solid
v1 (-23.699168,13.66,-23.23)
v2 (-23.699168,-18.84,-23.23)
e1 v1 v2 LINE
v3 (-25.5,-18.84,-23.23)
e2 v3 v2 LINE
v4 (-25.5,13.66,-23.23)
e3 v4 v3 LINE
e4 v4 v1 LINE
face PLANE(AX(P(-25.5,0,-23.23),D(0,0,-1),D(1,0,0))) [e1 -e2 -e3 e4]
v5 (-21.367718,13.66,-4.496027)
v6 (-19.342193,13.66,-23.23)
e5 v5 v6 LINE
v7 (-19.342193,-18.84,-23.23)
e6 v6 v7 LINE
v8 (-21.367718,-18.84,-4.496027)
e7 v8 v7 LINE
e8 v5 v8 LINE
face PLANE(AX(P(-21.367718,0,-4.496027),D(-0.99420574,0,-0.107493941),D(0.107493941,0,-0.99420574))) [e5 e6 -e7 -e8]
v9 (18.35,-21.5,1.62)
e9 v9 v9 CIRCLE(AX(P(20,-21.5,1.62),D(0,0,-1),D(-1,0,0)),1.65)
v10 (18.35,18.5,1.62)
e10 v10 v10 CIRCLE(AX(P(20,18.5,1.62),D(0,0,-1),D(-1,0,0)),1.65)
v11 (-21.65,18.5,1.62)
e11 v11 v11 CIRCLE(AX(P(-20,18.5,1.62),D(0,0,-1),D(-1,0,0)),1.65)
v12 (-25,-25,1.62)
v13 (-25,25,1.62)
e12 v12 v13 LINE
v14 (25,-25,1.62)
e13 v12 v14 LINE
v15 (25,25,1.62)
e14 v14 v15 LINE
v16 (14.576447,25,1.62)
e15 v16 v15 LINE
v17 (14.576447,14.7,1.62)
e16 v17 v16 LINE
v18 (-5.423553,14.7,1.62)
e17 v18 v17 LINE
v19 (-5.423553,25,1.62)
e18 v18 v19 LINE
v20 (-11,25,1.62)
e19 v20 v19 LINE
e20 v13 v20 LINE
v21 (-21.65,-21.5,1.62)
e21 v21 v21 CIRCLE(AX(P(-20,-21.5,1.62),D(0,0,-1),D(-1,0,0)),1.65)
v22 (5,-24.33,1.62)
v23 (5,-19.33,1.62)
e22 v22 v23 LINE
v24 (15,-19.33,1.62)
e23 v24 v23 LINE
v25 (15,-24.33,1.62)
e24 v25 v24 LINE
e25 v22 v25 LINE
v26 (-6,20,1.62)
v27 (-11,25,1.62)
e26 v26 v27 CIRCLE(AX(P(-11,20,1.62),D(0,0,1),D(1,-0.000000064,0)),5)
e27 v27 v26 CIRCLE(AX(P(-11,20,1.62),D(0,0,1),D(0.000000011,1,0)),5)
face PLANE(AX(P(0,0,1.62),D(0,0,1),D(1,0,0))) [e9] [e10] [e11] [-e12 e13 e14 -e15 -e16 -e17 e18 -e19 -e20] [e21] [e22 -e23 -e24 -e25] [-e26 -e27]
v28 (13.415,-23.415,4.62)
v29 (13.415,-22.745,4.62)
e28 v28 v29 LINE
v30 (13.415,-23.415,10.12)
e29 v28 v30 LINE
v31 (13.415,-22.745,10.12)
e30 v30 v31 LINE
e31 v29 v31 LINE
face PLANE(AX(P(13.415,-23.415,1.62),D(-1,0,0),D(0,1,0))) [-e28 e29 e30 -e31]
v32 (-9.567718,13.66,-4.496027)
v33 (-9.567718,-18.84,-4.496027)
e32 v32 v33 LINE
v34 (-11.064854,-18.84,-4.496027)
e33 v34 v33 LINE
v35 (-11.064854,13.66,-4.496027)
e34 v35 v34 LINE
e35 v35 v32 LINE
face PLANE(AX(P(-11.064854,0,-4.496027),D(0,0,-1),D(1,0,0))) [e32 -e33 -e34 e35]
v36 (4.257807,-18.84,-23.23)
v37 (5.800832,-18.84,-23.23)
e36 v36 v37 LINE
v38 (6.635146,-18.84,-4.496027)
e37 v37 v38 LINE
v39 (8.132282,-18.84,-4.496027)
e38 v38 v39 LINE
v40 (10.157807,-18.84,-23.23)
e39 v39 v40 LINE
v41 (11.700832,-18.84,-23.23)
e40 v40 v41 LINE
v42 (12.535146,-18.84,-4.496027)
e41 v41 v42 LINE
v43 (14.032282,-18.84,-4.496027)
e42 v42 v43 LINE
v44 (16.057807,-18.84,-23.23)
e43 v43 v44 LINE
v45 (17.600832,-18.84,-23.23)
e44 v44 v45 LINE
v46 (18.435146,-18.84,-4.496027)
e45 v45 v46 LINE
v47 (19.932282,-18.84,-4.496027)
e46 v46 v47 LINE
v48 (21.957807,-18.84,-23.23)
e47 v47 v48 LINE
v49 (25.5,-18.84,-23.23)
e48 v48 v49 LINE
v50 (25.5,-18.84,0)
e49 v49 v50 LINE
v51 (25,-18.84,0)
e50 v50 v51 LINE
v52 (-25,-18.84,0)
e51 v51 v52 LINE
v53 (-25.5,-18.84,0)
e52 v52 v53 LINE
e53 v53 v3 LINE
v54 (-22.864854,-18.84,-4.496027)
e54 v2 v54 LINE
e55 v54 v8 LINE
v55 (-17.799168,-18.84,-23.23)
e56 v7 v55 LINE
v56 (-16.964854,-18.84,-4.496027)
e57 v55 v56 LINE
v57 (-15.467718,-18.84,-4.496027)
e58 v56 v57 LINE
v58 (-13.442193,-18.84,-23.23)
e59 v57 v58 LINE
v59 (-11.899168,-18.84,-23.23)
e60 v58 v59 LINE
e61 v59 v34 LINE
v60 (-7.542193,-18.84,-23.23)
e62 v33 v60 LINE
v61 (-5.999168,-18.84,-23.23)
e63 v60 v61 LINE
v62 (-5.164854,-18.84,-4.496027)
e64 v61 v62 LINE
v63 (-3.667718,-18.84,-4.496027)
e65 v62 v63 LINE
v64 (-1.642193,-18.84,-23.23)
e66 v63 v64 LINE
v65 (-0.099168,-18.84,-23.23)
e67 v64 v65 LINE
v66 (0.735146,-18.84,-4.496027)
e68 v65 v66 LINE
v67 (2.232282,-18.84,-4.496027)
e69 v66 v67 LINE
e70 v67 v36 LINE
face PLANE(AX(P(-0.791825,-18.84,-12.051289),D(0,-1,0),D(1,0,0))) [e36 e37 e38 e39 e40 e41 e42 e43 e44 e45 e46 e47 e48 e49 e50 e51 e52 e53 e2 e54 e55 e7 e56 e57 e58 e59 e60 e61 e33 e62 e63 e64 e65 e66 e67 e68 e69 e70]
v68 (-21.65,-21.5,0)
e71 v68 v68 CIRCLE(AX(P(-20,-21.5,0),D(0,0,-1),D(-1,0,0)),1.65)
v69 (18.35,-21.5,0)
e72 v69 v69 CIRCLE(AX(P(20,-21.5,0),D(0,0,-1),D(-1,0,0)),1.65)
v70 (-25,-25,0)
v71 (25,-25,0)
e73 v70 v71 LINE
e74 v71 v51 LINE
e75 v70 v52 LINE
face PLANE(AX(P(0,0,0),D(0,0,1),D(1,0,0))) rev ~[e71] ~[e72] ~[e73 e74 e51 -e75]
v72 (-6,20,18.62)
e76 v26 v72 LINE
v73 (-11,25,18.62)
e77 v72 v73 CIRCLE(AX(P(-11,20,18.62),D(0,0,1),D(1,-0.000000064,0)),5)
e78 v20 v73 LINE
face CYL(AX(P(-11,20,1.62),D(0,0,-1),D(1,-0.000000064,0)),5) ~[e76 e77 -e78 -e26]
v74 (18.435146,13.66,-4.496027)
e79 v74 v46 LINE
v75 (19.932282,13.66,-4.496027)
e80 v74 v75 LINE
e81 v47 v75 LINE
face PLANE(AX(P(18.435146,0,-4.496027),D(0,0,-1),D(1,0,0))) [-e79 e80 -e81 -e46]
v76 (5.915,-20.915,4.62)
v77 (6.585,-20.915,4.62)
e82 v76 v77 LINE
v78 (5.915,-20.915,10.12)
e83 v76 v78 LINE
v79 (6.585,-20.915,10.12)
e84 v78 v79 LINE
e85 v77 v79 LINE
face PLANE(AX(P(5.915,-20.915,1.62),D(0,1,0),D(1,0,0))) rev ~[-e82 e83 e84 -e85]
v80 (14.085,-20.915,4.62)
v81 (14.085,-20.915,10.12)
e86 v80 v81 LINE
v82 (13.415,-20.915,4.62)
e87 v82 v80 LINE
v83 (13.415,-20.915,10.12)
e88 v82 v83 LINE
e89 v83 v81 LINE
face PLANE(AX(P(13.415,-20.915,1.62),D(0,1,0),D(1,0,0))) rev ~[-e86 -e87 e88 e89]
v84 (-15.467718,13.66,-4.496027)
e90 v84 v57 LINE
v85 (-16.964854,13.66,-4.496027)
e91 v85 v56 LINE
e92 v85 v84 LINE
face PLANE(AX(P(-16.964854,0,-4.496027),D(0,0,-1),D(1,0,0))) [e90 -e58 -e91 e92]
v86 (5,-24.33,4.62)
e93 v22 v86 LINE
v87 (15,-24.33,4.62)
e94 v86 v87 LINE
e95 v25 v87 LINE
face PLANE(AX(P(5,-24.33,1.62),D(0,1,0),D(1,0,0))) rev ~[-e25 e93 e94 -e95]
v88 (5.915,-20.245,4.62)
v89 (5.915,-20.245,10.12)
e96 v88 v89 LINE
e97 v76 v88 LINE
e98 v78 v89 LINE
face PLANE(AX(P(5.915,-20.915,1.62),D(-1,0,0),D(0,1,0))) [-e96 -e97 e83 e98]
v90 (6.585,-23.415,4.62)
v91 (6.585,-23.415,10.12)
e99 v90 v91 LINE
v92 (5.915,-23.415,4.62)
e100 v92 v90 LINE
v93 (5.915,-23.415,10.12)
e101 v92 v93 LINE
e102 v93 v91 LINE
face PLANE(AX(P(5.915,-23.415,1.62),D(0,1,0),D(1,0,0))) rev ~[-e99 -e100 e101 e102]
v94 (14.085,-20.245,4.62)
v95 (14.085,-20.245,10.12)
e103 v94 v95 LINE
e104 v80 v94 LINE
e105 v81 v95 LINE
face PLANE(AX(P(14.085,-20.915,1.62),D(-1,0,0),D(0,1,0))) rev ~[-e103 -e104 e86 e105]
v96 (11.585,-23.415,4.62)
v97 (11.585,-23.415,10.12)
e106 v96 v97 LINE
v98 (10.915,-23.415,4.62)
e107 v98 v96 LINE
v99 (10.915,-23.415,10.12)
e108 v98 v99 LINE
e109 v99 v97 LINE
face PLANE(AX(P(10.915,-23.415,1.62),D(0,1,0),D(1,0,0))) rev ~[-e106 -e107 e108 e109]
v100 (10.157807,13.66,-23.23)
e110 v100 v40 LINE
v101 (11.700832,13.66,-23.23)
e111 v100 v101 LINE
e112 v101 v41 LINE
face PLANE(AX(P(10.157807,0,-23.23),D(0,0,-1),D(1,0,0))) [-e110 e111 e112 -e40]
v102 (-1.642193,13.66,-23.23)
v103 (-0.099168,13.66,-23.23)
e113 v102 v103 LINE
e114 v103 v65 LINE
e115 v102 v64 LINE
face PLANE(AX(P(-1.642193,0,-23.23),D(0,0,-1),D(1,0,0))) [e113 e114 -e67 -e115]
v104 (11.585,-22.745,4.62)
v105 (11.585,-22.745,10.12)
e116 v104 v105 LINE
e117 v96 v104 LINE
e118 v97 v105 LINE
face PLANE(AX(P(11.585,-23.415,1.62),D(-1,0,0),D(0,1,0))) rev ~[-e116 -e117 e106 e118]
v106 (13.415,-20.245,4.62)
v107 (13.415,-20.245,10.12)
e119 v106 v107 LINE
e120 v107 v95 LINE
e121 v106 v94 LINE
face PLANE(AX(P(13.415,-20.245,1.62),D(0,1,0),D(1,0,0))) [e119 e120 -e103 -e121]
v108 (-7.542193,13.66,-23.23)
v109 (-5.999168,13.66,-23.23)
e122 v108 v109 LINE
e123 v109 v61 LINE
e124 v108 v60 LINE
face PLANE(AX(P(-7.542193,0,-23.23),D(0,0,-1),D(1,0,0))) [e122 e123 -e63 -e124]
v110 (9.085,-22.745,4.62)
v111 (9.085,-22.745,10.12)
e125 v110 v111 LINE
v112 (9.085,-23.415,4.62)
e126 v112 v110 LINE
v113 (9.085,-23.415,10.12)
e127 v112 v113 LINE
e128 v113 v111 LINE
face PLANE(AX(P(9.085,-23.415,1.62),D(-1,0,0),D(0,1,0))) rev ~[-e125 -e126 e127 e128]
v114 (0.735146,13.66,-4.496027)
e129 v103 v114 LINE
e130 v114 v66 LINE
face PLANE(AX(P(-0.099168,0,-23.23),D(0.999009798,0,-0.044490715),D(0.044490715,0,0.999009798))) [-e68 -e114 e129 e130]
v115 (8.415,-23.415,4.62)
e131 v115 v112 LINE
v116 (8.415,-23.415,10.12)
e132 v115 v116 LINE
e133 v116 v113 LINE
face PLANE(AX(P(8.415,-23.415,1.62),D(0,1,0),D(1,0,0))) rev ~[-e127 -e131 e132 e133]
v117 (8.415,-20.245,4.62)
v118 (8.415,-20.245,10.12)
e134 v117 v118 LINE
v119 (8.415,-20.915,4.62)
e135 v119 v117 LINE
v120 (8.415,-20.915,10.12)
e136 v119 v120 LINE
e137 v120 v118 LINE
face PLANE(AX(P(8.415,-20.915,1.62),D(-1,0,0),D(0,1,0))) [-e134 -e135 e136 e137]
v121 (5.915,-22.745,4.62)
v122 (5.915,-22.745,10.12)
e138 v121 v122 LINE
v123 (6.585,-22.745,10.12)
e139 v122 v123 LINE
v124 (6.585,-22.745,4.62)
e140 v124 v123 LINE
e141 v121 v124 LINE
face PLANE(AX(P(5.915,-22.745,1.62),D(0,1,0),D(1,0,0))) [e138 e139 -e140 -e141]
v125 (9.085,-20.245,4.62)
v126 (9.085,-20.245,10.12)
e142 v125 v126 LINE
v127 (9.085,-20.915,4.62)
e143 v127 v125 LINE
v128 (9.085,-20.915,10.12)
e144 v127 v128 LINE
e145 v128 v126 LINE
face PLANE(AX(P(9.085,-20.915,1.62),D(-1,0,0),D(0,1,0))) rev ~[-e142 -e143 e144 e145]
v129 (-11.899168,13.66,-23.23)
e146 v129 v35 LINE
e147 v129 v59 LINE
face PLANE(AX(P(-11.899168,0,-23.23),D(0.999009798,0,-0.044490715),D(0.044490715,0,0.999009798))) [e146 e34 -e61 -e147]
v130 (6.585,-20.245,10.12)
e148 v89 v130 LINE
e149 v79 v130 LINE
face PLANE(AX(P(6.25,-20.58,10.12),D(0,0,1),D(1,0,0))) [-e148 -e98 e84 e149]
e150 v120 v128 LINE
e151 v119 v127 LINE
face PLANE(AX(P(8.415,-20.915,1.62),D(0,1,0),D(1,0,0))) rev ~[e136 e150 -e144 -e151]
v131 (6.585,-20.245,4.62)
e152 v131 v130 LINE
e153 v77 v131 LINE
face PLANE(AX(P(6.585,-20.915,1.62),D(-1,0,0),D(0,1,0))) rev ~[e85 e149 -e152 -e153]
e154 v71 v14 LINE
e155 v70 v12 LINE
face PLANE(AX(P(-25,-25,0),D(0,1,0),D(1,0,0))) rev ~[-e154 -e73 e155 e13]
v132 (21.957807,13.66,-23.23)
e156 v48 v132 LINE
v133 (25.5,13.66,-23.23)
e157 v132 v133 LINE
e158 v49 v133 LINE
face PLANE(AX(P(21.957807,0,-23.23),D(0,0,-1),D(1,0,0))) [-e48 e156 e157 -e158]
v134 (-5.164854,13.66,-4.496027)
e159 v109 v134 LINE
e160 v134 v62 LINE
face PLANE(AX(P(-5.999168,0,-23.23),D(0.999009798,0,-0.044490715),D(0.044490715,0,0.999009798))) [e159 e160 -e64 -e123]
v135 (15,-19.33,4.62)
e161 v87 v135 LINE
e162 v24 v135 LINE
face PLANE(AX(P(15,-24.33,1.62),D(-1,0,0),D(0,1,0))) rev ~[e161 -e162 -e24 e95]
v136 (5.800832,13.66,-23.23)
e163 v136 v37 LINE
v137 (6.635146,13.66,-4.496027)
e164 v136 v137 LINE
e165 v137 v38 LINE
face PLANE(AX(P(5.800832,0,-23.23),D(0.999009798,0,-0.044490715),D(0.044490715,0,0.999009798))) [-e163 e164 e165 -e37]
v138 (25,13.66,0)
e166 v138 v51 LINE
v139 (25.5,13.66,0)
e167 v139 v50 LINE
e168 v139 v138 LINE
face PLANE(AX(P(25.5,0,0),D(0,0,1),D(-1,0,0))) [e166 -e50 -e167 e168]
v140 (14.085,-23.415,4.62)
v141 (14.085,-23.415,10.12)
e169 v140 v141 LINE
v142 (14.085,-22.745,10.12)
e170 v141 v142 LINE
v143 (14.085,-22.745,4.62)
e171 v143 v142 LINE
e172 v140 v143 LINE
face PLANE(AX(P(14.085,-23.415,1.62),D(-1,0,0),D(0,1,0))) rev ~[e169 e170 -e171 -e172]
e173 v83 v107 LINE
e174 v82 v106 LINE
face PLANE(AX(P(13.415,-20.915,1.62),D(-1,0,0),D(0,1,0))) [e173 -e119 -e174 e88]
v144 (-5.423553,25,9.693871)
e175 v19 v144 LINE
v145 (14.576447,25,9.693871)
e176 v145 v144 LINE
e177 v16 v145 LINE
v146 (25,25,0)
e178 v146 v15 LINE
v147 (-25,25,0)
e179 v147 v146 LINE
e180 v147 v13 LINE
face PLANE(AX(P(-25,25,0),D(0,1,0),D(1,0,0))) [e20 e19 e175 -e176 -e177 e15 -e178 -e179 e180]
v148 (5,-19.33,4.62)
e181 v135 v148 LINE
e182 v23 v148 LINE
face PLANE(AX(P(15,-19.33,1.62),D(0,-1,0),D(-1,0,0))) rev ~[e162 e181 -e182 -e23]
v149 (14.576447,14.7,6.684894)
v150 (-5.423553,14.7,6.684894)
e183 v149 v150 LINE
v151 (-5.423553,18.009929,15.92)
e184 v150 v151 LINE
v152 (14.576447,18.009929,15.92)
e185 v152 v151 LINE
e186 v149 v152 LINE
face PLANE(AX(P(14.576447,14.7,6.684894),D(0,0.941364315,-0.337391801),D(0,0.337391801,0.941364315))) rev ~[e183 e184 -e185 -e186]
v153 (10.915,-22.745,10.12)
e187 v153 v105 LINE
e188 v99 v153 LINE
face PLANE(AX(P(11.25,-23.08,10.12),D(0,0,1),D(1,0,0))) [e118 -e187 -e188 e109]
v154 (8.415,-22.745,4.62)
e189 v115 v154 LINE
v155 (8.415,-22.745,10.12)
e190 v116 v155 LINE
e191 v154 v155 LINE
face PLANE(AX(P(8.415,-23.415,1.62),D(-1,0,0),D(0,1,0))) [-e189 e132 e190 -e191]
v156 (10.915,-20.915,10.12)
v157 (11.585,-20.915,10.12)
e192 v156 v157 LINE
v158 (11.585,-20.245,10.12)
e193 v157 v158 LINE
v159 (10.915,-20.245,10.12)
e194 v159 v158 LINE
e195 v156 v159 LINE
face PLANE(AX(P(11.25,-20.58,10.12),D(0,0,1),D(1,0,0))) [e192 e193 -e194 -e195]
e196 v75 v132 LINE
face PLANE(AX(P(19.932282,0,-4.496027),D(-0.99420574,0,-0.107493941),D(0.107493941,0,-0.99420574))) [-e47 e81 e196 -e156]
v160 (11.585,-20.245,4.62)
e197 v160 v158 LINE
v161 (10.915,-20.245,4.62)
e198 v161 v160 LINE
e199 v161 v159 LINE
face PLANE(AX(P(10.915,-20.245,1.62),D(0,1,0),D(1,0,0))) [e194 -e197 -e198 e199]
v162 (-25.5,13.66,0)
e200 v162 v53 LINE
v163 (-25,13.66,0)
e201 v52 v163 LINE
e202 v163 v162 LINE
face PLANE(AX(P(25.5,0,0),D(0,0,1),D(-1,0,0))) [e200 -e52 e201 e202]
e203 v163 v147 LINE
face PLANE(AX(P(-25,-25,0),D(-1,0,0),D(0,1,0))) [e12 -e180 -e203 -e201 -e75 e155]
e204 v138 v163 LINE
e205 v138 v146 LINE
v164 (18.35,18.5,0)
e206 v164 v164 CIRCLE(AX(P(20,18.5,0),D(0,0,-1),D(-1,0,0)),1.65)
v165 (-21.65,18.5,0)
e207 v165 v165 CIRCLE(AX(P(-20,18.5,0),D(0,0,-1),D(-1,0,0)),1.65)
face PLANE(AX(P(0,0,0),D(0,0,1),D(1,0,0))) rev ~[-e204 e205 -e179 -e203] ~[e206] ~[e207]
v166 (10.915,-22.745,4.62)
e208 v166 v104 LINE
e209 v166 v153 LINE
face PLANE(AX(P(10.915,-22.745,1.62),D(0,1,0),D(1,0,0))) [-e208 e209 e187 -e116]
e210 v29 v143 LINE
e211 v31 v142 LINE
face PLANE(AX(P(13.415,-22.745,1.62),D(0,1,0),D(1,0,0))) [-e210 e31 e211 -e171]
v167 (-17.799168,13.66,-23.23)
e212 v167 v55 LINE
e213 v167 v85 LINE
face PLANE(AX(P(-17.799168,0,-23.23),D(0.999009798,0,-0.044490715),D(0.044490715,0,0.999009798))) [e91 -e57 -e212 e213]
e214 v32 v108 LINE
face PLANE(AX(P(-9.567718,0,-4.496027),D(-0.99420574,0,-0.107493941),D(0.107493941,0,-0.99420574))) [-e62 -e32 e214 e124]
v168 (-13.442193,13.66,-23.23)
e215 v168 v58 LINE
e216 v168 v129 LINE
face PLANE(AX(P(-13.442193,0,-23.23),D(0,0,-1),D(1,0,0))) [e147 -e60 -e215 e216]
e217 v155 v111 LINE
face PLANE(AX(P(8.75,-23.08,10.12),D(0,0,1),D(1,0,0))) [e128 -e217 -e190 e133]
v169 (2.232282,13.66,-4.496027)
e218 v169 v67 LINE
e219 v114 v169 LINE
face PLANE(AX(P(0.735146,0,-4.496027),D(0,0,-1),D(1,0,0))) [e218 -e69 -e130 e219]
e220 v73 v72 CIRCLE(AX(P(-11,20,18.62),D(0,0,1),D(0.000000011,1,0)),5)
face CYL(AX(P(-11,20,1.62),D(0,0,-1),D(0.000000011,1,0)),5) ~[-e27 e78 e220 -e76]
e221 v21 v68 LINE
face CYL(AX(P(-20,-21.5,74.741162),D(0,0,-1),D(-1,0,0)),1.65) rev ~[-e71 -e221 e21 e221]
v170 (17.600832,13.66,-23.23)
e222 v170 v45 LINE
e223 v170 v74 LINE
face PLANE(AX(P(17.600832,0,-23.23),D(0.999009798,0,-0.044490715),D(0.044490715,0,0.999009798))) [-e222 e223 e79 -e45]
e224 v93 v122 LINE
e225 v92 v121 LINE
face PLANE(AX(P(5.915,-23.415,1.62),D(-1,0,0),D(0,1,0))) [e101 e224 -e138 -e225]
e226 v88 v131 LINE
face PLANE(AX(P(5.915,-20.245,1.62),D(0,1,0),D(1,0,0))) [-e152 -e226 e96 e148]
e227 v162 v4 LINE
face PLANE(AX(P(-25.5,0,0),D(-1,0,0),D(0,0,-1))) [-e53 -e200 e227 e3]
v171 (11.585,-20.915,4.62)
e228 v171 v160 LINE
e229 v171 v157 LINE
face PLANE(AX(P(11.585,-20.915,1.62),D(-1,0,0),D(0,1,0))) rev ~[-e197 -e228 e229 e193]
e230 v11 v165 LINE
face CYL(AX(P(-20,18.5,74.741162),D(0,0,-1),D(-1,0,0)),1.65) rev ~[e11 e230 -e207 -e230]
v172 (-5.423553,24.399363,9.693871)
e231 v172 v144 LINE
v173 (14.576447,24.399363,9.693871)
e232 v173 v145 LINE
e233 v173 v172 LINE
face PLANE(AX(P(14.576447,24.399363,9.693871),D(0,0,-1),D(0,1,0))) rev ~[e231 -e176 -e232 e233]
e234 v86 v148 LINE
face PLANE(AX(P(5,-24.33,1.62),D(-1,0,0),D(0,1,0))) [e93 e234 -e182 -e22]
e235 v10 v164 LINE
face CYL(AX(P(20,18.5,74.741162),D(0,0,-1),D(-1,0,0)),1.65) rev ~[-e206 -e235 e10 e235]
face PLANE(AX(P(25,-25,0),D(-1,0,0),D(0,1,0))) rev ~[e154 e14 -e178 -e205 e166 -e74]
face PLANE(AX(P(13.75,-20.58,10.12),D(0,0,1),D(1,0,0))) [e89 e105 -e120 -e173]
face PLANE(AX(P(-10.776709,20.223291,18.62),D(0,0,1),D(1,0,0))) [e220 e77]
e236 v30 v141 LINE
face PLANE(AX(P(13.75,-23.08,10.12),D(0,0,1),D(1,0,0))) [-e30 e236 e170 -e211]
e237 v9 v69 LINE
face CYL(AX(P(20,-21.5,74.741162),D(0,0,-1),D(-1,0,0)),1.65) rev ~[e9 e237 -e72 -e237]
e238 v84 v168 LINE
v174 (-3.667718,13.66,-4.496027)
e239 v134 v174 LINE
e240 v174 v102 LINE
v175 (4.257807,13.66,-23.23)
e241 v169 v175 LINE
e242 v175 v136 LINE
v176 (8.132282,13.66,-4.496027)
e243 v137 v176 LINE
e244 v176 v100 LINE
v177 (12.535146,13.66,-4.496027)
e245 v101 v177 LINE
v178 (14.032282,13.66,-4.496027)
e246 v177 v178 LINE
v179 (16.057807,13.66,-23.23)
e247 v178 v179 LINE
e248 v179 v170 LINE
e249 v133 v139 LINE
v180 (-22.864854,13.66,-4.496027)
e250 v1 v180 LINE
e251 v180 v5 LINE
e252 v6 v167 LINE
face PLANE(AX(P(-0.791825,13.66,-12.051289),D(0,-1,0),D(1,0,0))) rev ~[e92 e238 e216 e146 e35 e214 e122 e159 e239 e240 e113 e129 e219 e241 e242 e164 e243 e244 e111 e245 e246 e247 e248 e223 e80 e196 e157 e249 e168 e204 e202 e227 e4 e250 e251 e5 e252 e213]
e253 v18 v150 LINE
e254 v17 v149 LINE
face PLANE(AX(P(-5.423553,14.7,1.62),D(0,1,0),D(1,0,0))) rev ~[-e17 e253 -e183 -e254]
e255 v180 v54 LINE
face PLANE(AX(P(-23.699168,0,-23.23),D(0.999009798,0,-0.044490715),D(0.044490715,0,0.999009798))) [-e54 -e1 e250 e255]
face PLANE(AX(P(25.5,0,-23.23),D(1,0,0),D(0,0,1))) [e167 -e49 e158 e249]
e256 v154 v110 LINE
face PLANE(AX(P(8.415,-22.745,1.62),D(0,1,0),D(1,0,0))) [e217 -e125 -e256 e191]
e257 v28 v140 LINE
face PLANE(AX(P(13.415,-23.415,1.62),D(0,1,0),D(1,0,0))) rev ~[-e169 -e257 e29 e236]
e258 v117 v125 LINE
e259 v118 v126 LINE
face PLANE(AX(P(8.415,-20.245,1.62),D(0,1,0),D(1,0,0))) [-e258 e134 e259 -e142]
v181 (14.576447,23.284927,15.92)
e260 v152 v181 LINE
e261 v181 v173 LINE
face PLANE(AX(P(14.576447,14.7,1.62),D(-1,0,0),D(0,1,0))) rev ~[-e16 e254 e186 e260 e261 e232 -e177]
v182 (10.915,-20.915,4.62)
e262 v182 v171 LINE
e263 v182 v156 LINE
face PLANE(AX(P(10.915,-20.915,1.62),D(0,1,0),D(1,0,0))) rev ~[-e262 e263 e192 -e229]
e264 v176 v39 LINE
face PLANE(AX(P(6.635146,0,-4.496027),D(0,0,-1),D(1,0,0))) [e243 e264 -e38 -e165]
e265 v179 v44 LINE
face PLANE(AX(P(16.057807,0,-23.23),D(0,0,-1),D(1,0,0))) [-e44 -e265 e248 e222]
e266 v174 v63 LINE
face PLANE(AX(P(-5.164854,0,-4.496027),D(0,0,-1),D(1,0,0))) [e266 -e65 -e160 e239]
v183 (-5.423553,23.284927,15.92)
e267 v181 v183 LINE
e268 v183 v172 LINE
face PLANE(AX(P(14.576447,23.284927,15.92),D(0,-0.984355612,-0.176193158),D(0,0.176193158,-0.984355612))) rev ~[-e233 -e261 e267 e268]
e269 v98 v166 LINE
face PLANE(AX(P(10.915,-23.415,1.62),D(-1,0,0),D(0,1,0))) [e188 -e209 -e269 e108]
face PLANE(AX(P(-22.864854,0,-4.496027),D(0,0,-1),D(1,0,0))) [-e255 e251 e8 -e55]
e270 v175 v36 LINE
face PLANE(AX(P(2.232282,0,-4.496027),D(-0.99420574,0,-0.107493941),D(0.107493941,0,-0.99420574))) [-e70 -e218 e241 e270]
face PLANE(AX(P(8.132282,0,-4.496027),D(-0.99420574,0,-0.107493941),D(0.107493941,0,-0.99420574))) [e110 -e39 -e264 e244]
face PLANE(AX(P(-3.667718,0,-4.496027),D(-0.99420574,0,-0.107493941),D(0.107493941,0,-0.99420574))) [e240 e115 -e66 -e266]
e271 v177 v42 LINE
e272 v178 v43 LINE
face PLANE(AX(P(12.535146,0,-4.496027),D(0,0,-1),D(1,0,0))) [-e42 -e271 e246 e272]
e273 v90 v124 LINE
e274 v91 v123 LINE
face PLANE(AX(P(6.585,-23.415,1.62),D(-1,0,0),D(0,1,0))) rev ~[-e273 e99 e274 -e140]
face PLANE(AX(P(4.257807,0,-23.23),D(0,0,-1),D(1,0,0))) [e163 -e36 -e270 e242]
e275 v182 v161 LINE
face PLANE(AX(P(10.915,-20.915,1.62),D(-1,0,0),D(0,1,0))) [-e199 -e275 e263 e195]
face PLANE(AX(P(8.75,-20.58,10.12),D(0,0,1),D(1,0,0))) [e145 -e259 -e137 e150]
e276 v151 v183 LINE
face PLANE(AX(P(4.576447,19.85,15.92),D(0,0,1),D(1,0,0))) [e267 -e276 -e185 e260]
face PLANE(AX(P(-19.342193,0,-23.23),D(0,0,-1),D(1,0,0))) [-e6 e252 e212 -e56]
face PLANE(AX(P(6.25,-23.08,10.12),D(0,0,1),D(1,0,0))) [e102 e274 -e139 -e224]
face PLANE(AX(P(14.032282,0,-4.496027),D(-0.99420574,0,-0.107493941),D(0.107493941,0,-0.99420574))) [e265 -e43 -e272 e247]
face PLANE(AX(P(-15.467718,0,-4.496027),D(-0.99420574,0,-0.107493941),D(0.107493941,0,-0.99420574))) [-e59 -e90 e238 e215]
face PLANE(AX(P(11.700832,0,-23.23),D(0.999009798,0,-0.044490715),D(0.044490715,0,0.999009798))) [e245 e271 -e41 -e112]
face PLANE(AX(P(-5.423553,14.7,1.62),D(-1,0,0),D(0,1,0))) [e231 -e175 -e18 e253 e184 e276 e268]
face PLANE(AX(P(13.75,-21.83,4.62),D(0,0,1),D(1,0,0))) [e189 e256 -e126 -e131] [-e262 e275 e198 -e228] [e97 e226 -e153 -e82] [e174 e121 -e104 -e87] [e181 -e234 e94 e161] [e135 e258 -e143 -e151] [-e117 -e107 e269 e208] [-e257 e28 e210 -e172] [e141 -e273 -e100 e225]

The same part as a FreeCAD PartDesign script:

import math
import FreeCAD as App
import Part
import Sketcher
from FreeCAD import Vector


def add_polygon(sketch, points):
    """Adds a closed chain of lines whose ends are joined by coincident constraints."""
    first, n = sketch.GeometryCount, len(points)
    for a, b in zip(points, points[1:] + points[:1]):
        sketch.addGeometry(Part.LineSegment(App.Vector(*a, 0), App.Vector(*b, 0)), False)
    for i in range(n):
        sketch.addConstraint(Sketcher.Constraint("Coincident", first + i, 2, first + (i + 1) % n, 1))

doc = App.newDocument("Part")
params = doc.addObject("Spreadsheet::Sheet", "Params")
for row, (alias, value) in enumerate([
    ("sketch1_width", "50 mm"),
    ("pad1_length", "1.62 mm"),
    ("sketch2_radius", "5 mm"),
    ("pad2_length", "17 mm"),
    ("sketch3_width", "20 mm"),
    ("sketch3_height", "10.3 mm"),
    ("pad3_length", "14.3 mm"),
    ("sketch4_width", "10 mm"),
    ("sketch4_height", "5 mm"),
    ("sketch4_width2", "0.67 mm"),
    ("pad4_length", "3 mm"),
    ("sketch5_width", "0.67 mm"),
    ("pad5_length", "8.5 mm"),
    ("sketch6_diameter", "3.3 mm"),
    ("hole_diameter", "3.3 mm"),
    ("sketch7_width", "51 mm"),
    ("sketch7_height", "23.23 mm"),
    ("pad6_length", "18.84 mm"),
    ("pad6_length2", "13.66 mm"),
    ("pocket1_length", "20 mm"),
], start=1):
    params.set(f"A{row}", alias)
    params.set(f"B{row}", "=" + value)
    params.setAlias(f"B{row}", alias)

body = doc.addObject("PartDesign::Body", "Body")

# Sketch on XY plane
sketch1 = body.newObject("Sketcher::SketchObject", "Sketch")
sketch1.AttachmentSupport = (doc.getObject("XY_Plane"), [""])
sketch1.MapMode = "FlatFace"
add_polygon(sketch1, [(-25, 25), (-25, -25), (25, -25), (25, 25)])  # lines 0-3
sketch1.addConstraint(Sketcher.Constraint("Vertical", 0))
sketch1.addConstraint(Sketcher.Constraint("Horizontal", 1))
sketch1.addConstraint(Sketcher.Constraint("Vertical", 2))
sketch1.addConstraint(Sketcher.Constraint("Horizontal", 3))
sketch1.addConstraint(Sketcher.Constraint("Symmetric", 0, 2, 2, 2, -1, 1))
sketch1.addConstraint(Sketcher.Constraint("Equal", 3, 0))
sketch1.addConstraint(Sketcher.Constraint("DistanceX", 1, 1, 1, 2, 50.0))
sketch1.setExpression("Constraints[10]", "Params.sketch1_width")
pad1 = body.newObject("PartDesign::Pad", "Pad")
pad1.Profile = sketch1
pad1.setExpression("Length", "Params.pad1_length")

# Sketch on XY plane
sketch2 = body.newObject("Sketcher::SketchObject", "Sketch001")
sketch2.AttachmentSupport = (doc.getObject("XY_Plane"), [""])
sketch2.MapMode = "FlatFace"
sketch2.AttachmentOffset = App.Placement(Vector(0, 0, 1.62), App.Rotation())
sketch2.addGeometry(Part.ArcOfCircle(Part.Circle(Vector(-11, 20, 0), Vector(0, 0, 1), 5), math.radians(0), math.radians(90)), False)
sketch2.addGeometry(Part.ArcOfCircle(Part.Circle(Vector(-11, 20, 0), Vector(0, 0, 1), 5), math.radians(90), math.radians(360)), False)
sketch2.addConstraint(Sketcher.Constraint("Tangent", 0, 1, 1, 2))
sketch2.addConstraint(Sketcher.Constraint("Coincident", 1, 1, 0, 2))
sketch2.addConstraint(Sketcher.Constraint("Horizontal", 1, 3, 0, 1))
sketch2.addConstraint(Sketcher.Constraint("Vertical", 0, 3, 1, 1))
sketch2.addConstraint(Sketcher.Constraint("Radius", 0, 5.0))
sketch2.addConstraint(Sketcher.Constraint("DistanceX", 0, 3, -1, 1, 11.0))
sketch2.addConstraint(Sketcher.Constraint("DistanceY", -1, 1, 0, 3, 20.0))
sketch2.setExpression("Constraints[4]", "Params.sketch2_radius")
pad2 = body.newObject("PartDesign::Pad", "Pad001")
pad2.Profile = sketch2
pad2.setExpression("Length", "Params.pad2_length")

# Sketch on XY plane
sketch3 = body.newObject("Sketcher::SketchObject", "Sketch002")
sketch3.AttachmentSupport = (doc.getObject("XY_Plane"), [""])
sketch3.MapMode = "FlatFace"
sketch3.AttachmentOffset = App.Placement(Vector(0, 0, 1.62), App.Rotation())
add_polygon(sketch3, [(-5, 25), (-5, 15), (15, 15), (15, 25)])  # lines 0-3
sketch3.addConstraint(Sketcher.Constraint("Vertical", 0))
sketch3.addConstraint(Sketcher.Constraint("Horizontal", 1))
sketch3.addConstraint(Sketcher.Constraint("Vertical", 2))
sketch3.addConstraint(Sketcher.Constraint("Horizontal", 3))
sketch3.addConstraint(Sketcher.Constraint("DistanceX", 1, 1, 1, 2, 20.0))
sketch3.addConstraint(Sketcher.Constraint("DistanceY", 0, 2, 0, 1, 10.3))
sketch3.addConstraint(Sketcher.Constraint("DistanceY", -1, 1, 2, 2, 25.0))
sketch3.addConstraint(Sketcher.Constraint("DistanceX", 0, 2, -1, 1, 5.423553))
sketch3.setExpression("Constraints[8]", "Params.sketch3_width")
sketch3.setExpression("Constraints[9]", "Params.sketch3_height")
pad3 = body.newObject("PartDesign::Pad", "Pad002")
pad3.Profile = sketch3
pad3.setExpression("Length", "Params.pad3_length")

# Sketch on XY plane
sketch4 = body.newObject("Sketcher::SketchObject", "Sketch003")
sketch4.AttachmentSupport = (doc.getObject("XY_Plane"), [""])
sketch4.MapMode = "FlatFace"
sketch4.AttachmentOffset = App.Placement(Vector(0, 0, 1.62), App.Rotation())
add_polygon(sketch4, [(15, -24.3), (15, -19.3), (5, -19.3), (5, -24.3)])  # lines 0-3
add_polygon(sketch4, [(6.6, -23.4), (5.9, -23.4), (5.9, -22.7), (6.6, -22.7)])  # lines 4-7
add_polygon(sketch4, [(9.1, -23.4), (8.4, -23.4), (8.4, -22.7), (9.1, -22.7)])  # lines 8-11
add_polygon(sketch4, [(11.6, -23.4), (10.9, -23.4), (10.9, -22.7), (11.6, -22.7)])  # lines 12-15
add_polygon(sketch4, [(14.1, -23.4), (13.4, -23.4), (13.4, -22.7), (14.1, -22.7)])  # lines 16-19
add_polygon(sketch4, [(6.6, -20.9), (5.9, -20.9), (5.9, -20.2), (6.6, -20.2)])  # lines 20-23
add_polygon(sketch4, [(9.1, -20.9), (8.4, -20.9), (8.4, -20.2), (9.1, -20.2)])  # lines 24-27
add_polygon(sketch4, [(11.6, -20.9), (10.9, -20.9), (10.9, -20.2), (11.6, -20.2)])  # lines 28-31
add_polygon(sketch4, [(14.1, -20.9), (13.4, -20.9), (13.4, -20.2), (14.1, -20.2)])  # lines 32-35
sketch4.addConstraint(Sketcher.Constraint("Vertical", 0))
sketch4.addConstraint(Sketcher.Constraint("Horizontal", 1))
sketch4.addConstraint(Sketcher.Constraint("Vertical", 2))
sketch4.addConstraint(Sketcher.Constraint("Horizontal", 3))
sketch4.addConstraint(Sketcher.Constraint("Horizontal", 4))
sketch4.addConstraint(Sketcher.Constraint("Vertical", 5))
sketch4.addConstraint(Sketcher.Constraint("Horizontal", 6))
sketch4.addConstraint(Sketcher.Constraint("Vertical", 7))
sketch4.addConstraint(Sketcher.Constraint("Horizontal", 8))
sketch4.addConstraint(Sketcher.Constraint("Vertical", 9))
sketch4.addConstraint(Sketcher.Constraint("Horizontal", 10))
sketch4.addConstraint(Sketcher.Constraint("Vertical", 11))
sketch4.addConstraint(Sketcher.Constraint("Horizontal", 12))
sketch4.addConstraint(Sketcher.Constraint("Vertical", 13))
sketch4.addConstraint(Sketcher.Constraint("Horizontal", 14))
sketch4.addConstraint(Sketcher.Constraint("Vertical", 15))
sketch4.addConstraint(Sketcher.Constraint("Horizontal", 16))
sketch4.addConstraint(Sketcher.Constraint("Vertical", 17))
sketch4.addConstraint(Sketcher.Constraint("Horizontal", 18))
sketch4.addConstraint(Sketcher.Constraint("Vertical", 19))
sketch4.addConstraint(Sketcher.Constraint("Horizontal", 20))
sketch4.addConstraint(Sketcher.Constraint("Vertical", 21))
sketch4.addConstraint(Sketcher.Constraint("Horizontal", 22))
sketch4.addConstraint(Sketcher.Constraint("Vertical", 23))
sketch4.addConstraint(Sketcher.Constraint("Horizontal", 24))
sketch4.addConstraint(Sketcher.Constraint("Vertical", 25))
sketch4.addConstraint(Sketcher.Constraint("Horizontal", 26))
sketch4.addConstraint(Sketcher.Constraint("Vertical", 27))
sketch4.addConstraint(Sketcher.Constraint("Horizontal", 28))
sketch4.addConstraint(Sketcher.Constraint("Vertical", 29))
sketch4.addConstraint(Sketcher.Constraint("Horizontal", 30))
sketch4.addConstraint(Sketcher.Constraint("Vertical", 31))
sketch4.addConstraint(Sketcher.Constraint("Horizontal", 32))
sketch4.addConstraint(Sketcher.Constraint("Vertical", 33))
sketch4.addConstraint(Sketcher.Constraint("Horizontal", 34))
sketch4.addConstraint(Sketcher.Constraint("Vertical", 35))
sketch4.addConstraint(Sketcher.Constraint("Horizontal", 7, 2, 8, 2))
sketch4.addConstraint(Sketcher.Constraint("Horizontal", 6, 2, 9, 2))
sketch4.addConstraint(Sketcher.Constraint("Horizontal", 11, 2, 12, 2))
sketch4.addConstraint(Sketcher.Constraint("Horizontal", 10, 2, 13, 2))
sketch4.addConstraint(Sketcher.Constraint("Horizontal", 15, 2, 16, 2))
sketch4.addConstraint(Sketcher.Constraint("Horizontal", 14, 2, 17, 2))
sketch4.addConstraint(Sketcher.Constraint("Horizontal", 23, 2, 24, 2))
sketch4.addConstraint(Sketcher.Constraint("Horizontal", 22, 2, 25, 2))
sketch4.addConstraint(Sketcher.Constraint("Horizontal", 27, 2, 28, 2))
sketch4.addConstraint(Sketcher.Constraint("Horizontal", 26, 2, 29, 2))
sketch4.addConstraint(Sketcher.Constraint("Horizontal", 31, 2, 32, 2))
sketch4.addConstraint(Sketcher.Constraint("Horizontal", 30, 2, 33, 2))
sketch4.addConstraint(Sketcher.Constraint("Vertical", 5, 2, 20, 2))
sketch4.addConstraint(Sketcher.Constraint("Vertical", 7, 2, 22, 2))
sketch4.addConstraint(Sketcher.Constraint("Vertical", 9, 2, 24, 2))
sketch4.addConstraint(Sketcher.Constraint("Vertical", 11, 2, 26, 2))
sketch4.addConstraint(Sketcher.Constraint("Vertical", 13, 2, 28, 2))
sketch4.addConstraint(Sketcher.Constraint("Vertical", 15, 2, 30, 2))
sketch4.addConstraint(Sketcher.Constraint("Vertical", 17, 2, 32, 2))
sketch4.addConstraint(Sketcher.Constraint("Vertical", 19, 2, 34, 2))
sketch4.addConstraint(Sketcher.Constraint("Equal", 6, 8))
sketch4.addConstraint(Sketcher.Constraint("Equal", 10, 12))
sketch4.addConstraint(Sketcher.Constraint("Equal", 14, 16))
sketch4.addConstraint(Sketcher.Constraint("Equal", 34, 5))
sketch4.addConstraint(Sketcher.Constraint("Equal", 19, 21))
sketch4.addConstraint(Sketcher.Constraint("DistanceX", 1, 2, 1, 1, 10.0))
sketch4.addConstraint(Sketcher.Constraint("DistanceY", 0, 1, 0, 2, 5.0))
sketch4.addConstraint(Sketcher.Constraint("DistanceX", -1, 1, 0, 2, 15.0))
sketch4.addConstraint(Sketcher.Constraint("DistanceX", 4, 2, 4, 1, 0.67))
sketch4.addConstraint(Sketcher.Constraint("DistanceX", 4, 2, 8, 2, 2.5))
sketch4.addConstraint(Sketcher.Constraint("DistanceX", 8, 2, 12, 2, 2.5))
sketch4.addConstraint(Sketcher.Constraint("DistanceX", 12, 2, 16, 2, 2.5))
sketch4.addConstraint(Sketcher.Constraint("DistanceY", 4, 2, 20, 2, 2.5))
sketch4.addConstraint(Sketcher.Constraint("DistanceY", 0, 2, -1, 1, 19.33))
sketch4.addConstraint(Sketcher.Constraint("DistanceX", -1, 1, 4, 2, 5.915))
sketch4.addConstraint(Sketcher.Constraint("DistanceY", 4, 2, -1, 1, 23.415))
sketch4.setExpression("Constraints[97]", "Params.sketch4_width")
sketch4.setExpression("Constraints[98]", "Params.sketch4_height")
sketch4.setExpression("Constraints[100]", "Params.sketch4_width2")
pad4 = body.newObject("PartDesign::Pad", "Pad003")
pad4.Profile = sketch4
pad4.setExpression("Length", "Params.pad4_length")

# Sketch on XY plane
sketch5 = body.newObject("Sketcher::SketchObject", "Sketch004")
sketch5.AttachmentSupport = (doc.getObject("XY_Plane"), [""])
sketch5.MapMode = "FlatFace"
sketch5.AttachmentOffset = App.Placement(Vector(0, 0, 1.62), App.Rotation())
add_polygon(sketch5, [(5.9, -20.2), (5.9, -20.9), (6.6, -20.9), (6.6, -20.2)])  # lines 0-3
add_polygon(sketch5, [(5.9, -22.7), (5.9, -23.4), (6.6, -23.4), (6.6, -22.7)])  # lines 4-7
add_polygon(sketch5, [(8.4, -22.7), (8.4, -23.4), (9.1, -23.4), (9.1, -22.7)])  # lines 8-11
add_polygon(sketch5, [(8.4, -20.2), (8.4, -20.9), (9.1, -20.9), (9.1, -20.2)])  # lines 12-15
add_polygon(sketch5, [(10.9, -20.2), (10.9, -20.9), (11.6, -20.9), (11.6, -20.2)])  # lines 16-19
add_polygon(sketch5, [(10.9, -22.7), (10.9, -23.4), (11.6, -23.4), (11.6, -22.7)])  # lines 20-23
add_polygon(sketch5, [(13.4, -22.7), (13.4, -23.4), (14.1, -23.4), (14.1, -22.7)])  # lines 24-27
add_polygon(sketch5, [(13.4, -20.2), (13.4, -20.9), (14.1, -20.9), (14.1, -20.2)])  # lines 28-31
sketch5.addConstraint(Sketcher.Constraint("Vertical", 0))
sketch5.addConstraint(Sketcher.Constraint("Horizontal", 1))
sketch5.addConstraint(Sketcher.Constraint("Vertical", 2))
sketch5.addConstraint(Sketcher.Constraint("Horizontal", 3))
sketch5.addConstraint(Sketcher.Constraint("Vertical", 4))
sketch5.addConstraint(Sketcher.Constraint("Horizontal", 5))
sketch5.addConstraint(Sketcher.Constraint("Vertical", 6))
sketch5.addConstraint(Sketcher.Constraint("Horizontal", 7))
sketch5.addConstraint(Sketcher.Constraint("Vertical", 8))
sketch5.addConstraint(Sketcher.Constraint("Horizontal", 9))
sketch5.addConstraint(Sketcher.Constraint("Vertical", 10))
sketch5.addConstraint(Sketcher.Constraint("Horizontal", 11))
sketch5.addConstraint(Sketcher.Constraint("Vertical", 12))
sketch5.addConstraint(Sketcher.Constraint("Horizontal", 13))
sketch5.addConstraint(Sketcher.Constraint("Vertical", 14))
sketch5.addConstraint(Sketcher.Constraint("Horizontal", 15))
sketch5.addConstraint(Sketcher.Constraint("Vertical", 16))
sketch5.addConstraint(Sketcher.Constraint("Horizontal", 17))
sketch5.addConstraint(Sketcher.Constraint("Vertical", 18))
sketch5.addConstraint(Sketcher.Constraint("Horizontal", 19))
sketch5.addConstraint(Sketcher.Constraint("Vertical", 20))
sketch5.addConstraint(Sketcher.Constraint("Horizontal", 21))
sketch5.addConstraint(Sketcher.Constraint("Vertical", 22))
sketch5.addConstraint(Sketcher.Constraint("Horizontal", 23))
sketch5.addConstraint(Sketcher.Constraint("Vertical", 24))
sketch5.addConstraint(Sketcher.Constraint("Horizontal", 25))
sketch5.addConstraint(Sketcher.Constraint("Vertical", 26))
sketch5.addConstraint(Sketcher.Constraint("Horizontal", 27))
sketch5.addConstraint(Sketcher.Constraint("Vertical", 28))
sketch5.addConstraint(Sketcher.Constraint("Horizontal", 29))
sketch5.addConstraint(Sketcher.Constraint("Vertical", 30))
sketch5.addConstraint(Sketcher.Constraint("Horizontal", 31))
sketch5.addConstraint(Sketcher.Constraint("Horizontal", 5, 2, 8, 2))
sketch5.addConstraint(Sketcher.Constraint("Horizontal", 7, 2, 10, 2))
sketch5.addConstraint(Sketcher.Constraint("Horizontal", 1, 2, 12, 2))
sketch5.addConstraint(Sketcher.Constraint("Horizontal", 3, 2, 14, 2))
sketch5.addConstraint(Sketcher.Constraint("Horizontal", 13, 2, 16, 2))
sketch5.addConstraint(Sketcher.Constraint("Horizontal", 15, 2, 18, 2))
sketch5.addConstraint(Sketcher.Constraint("Horizontal", 9, 2, 20, 2))
sketch5.addConstraint(Sketcher.Constraint("Horizontal", 11, 2, 22, 2))
sketch5.addConstraint(Sketcher.Constraint("Horizontal", 21, 2, 24, 2))
sketch5.addConstraint(Sketcher.Constraint("Horizontal", 23, 2, 26, 2))
sketch5.addConstraint(Sketcher.Constraint("Horizontal", 17, 2, 28, 2))
sketch5.addConstraint(Sketcher.Constraint("Horizontal", 19, 2, 30, 2))
sketch5.addConstraint(Sketcher.Constraint("Vertical", 3, 2, 4, 2))
sketch5.addConstraint(Sketcher.Constraint("Vertical", 2, 2, 5, 2))
sketch5.addConstraint(Sketcher.Constraint("Vertical", 11, 2, 12, 2))
sketch5.addConstraint(Sketcher.Constraint("Vertical", 10, 2, 13, 2))
sketch5.addConstraint(Sketcher.Constraint("Vertical", 19, 2, 20, 2))
sketch5.addConstraint(Sketcher.Constraint("Vertical", 18, 2, 21, 2))
sketch5.addConstraint(Sketcher.Constraint("Vertical", 27, 2, 28, 2))
sketch5.addConstraint(Sketcher.Constraint("Vertical", 26, 2, 29, 2))
sketch5.addConstraint(Sketcher.Constraint("Equal", 7, 9))
sketch5.addConstraint(Sketcher.Constraint("Equal", 15, 17))
sketch5.addConstraint(Sketcher.Constraint("Equal", 23, 25))
sketch5.addConstraint(Sketcher.Constraint("Equal", 31, 0))
sketch5.addConstraint(Sketcher.Constraint("Equal", 2, 4))
sketch5.addConstraint(Sketcher.Constraint("DistanceX", 1, 1, 1, 2, 0.67))
sketch5.addConstraint(Sketcher.Constraint("DistanceY", 4, 2, 0, 2, 2.5))
sketch5.addConstraint(Sketcher.Constraint("DistanceX", 4, 2, 8, 2, 2.5))
sketch5.addConstraint(Sketcher.Constraint("DistanceX", 12, 2, 16, 2, 2.5))
sketch5.addConstraint(Sketcher.Constraint("DistanceX", 20, 2, 24, 2, 2.5))
sketch5.addConstraint(Sketcher.Constraint("DistanceX", -1, 1, 0, 2, 5.915))
sketch5.addConstraint(Sketcher.Constraint("DistanceY", 0, 2, -1, 1, 20.915))
sketch5.setExpression("Constraints[89]", "Params.sketch5_width")
pad5 = body.newObject("PartDesign::Pad", "Pad004")
pad5.Profile = sketch5
pad5.setExpression("Length", "Params.pad5_length")

# Sketch on XY plane
sketch6 = body.newObject("Sketcher::SketchObject", "Sketch005")
sketch6.AttachmentSupport = (doc.getObject("XY_Plane"), [""])
sketch6.MapMode = "FlatFace"
sketch6.AttachmentOffset = App.Placement(Vector(0, 0, 1.62), App.Rotation())
sketch6.addGeometry(Part.Circle(Vector(-20, 18.5, 0), Vector(0, 0, 1), 1.6), False)
sketch6.addGeometry(Part.Circle(Vector(-20, -21.5, 0), Vector(0, 0, 1), 1.6), False)
sketch6.addGeometry(Part.Circle(Vector(20, -21.5, 0), Vector(0, 0, 1), 1.6), False)
sketch6.addGeometry(Part.Circle(Vector(20, 18.5, 0), Vector(0, 0, 1), 1.6), False)
sketch6.addConstraint(Sketcher.Constraint("Equal", 0, 1))
sketch6.addConstraint(Sketcher.Constraint("Equal", 1, 2))
sketch6.addConstraint(Sketcher.Constraint("Equal", 2, 3))
sketch6.addConstraint(Sketcher.Constraint("Symmetric", 1, 3, 2, 3, -2))
sketch6.addConstraint(Sketcher.Constraint("Symmetric", 0, 3, 3, 3, -2))
sketch6.addConstraint(Sketcher.Constraint("Vertical", 0, 3, 1, 3))
sketch6.addConstraint(Sketcher.Constraint("Diameter", 0, 3.3))
sketch6.addConstraint(Sketcher.Constraint("DistanceX", 0, 3, -1, 1, 20.0))
sketch6.addConstraint(Sketcher.Constraint("DistanceY", 1, 3, 0, 3, 40.0))
sketch6.addConstraint(Sketcher.Constraint("DistanceY", -1, 1, 0, 3, 18.5))
sketch6.setExpression("Constraints[6]", "Params.sketch6_diameter")
doc.recompute()
hole = body.newObject("PartDesign::Hole", "Hole")
hole.Profile = sketch6
hole.ThreadType = "None"
hole.setExpression("Diameter", "Params.hole_diameter")
hole.DepthType = "ThroughAll"

# Sketch on XZ plane
sketch7 = body.newObject("Sketcher::SketchObject", "Sketch006")
sketch7.AttachmentSupport = (doc.getObject("XZ_Plane"), [""])
sketch7.MapMode = "FlatFace"
add_polygon(sketch7, [(25.5, -23.2), (25.5, 0), (-25.5, 0), (-25.5, -23.2), (-23.7, -23.2), (-22.9, -4.5), (-21.4, -4.5), (-19.3, -23.2), (-17.8, -23.2), (-17, -4.5), (-15.5, -4.5), (-13.4, -23.2), (-11.9, -23.2), (-11.1, -4.5), (-9.6, -4.5), (-7.5, -23.2), (-6, -23.2), (-5.2, -4.5), (-3.7, -4.5), (-1.6, -23.2), (-0.1, -23.2), (0.7, -4.5), (2.2, -4.5), (4.3, -23.2), (5.8, -23.2), (6.6, -4.5), (8.1, -4.5), (10.2, -23.2), (11.7, -23.2), (12.5, -4.5), (14, -4.5), (16.1, -23.2), (17.6, -23.2), (18.4, -4.5), (19.9, -4.5), (22, -23.2)])  # lines 0-35
sketch7.addConstraint(Sketcher.Constraint("Vertical", 0))
sketch7.addConstraint(Sketcher.Constraint("Horizontal", 1))
sketch7.addConstraint(Sketcher.Constraint("Vertical", 2))
sketch7.addConstraint(Sketcher.Constraint("Horizontal", 3))
sketch7.addConstraint(Sketcher.Constraint("Horizontal", 5))
sketch7.addConstraint(Sketcher.Constraint("Horizontal", 7))
sketch7.addConstraint(Sketcher.Constraint("Horizontal", 9))
sketch7.addConstraint(Sketcher.Constraint("Horizontal", 11))
sketch7.addConstraint(Sketcher.Constraint("Horizontal", 13))
sketch7.addConstraint(Sketcher.Constraint("Horizontal", 15))
sketch7.addConstraint(Sketcher.Constraint("Horizontal", 17))
sketch7.addConstraint(Sketcher.Constraint("Horizontal", 19))
sketch7.addConstraint(Sketcher.Constraint("Horizontal", 21))
sketch7.addConstraint(Sketcher.Constraint("Horizontal", 23))
sketch7.addConstraint(Sketcher.Constraint("Horizontal", 25))
sketch7.addConstraint(Sketcher.Constraint("Horizontal", 27))
sketch7.addConstraint(Sketcher.Constraint("Horizontal", 29))
sketch7.addConstraint(Sketcher.Constraint("Horizontal", 31))
sketch7.addConstraint(Sketcher.Constraint("Horizontal", 33))
sketch7.addConstraint(Sketcher.Constraint("Horizontal", 35))
sketch7.addConstraint(Sketcher.Constraint("Symmetric", 0, 2, 1, 2, -1, 1))
sketch7.addConstraint(Sketcher.Constraint("Parallel", 4, 8))
sketch7.addConstraint(Sketcher.Constraint("Parallel", 6, 10))
sketch7.addConstraint(Sketcher.Constraint("Parallel", 8, 12))
sketch7.addConstraint(Sketcher.Constraint("Parallel", 10, 14))
sketch7.addConstraint(Sketcher.Constraint("Parallel", 12, 16))
sketch7.addConstraint(Sketcher.Constraint("Parallel", 14, 18))
sketch7.addConstraint(Sketcher.Constraint("Parallel", 16, 20))
sketch7.addConstraint(Sketcher.Constraint("Parallel", 18, 22))
sketch7.addConstraint(Sketcher.Constraint("Parallel", 20, 24))
sketch7.addConstraint(Sketcher.Constraint("Parallel", 22, 26))
sketch7.addConstraint(Sketcher.Constraint("Parallel", 24, 28))
sketch7.addConstraint(Sketcher.Constraint("Parallel", 26, 30))
sketch7.addConstraint(Sketcher.Constraint("Parallel", 28, 32))
sketch7.addConstraint(Sketcher.Constraint("Parallel", 30, 34))
sketch7.addConstraint(Sketcher.Constraint("Horizontal", 3, 2, 6, 2))
sketch7.addConstraint(Sketcher.Constraint("Horizontal", 5, 2, 8, 2))
sketch7.addConstraint(Sketcher.Constraint("Horizontal", 7, 2, 10, 2))
sketch7.addConstraint(Sketcher.Constraint("Horizontal", 9, 2, 12, 2))
sketch7.addConstraint(Sketcher.Constraint("Horizontal", 11, 2, 14, 2))
sketch7.addConstraint(Sketcher.Constraint("Horizontal", 13, 2, 16, 2))
sketch7.addConstraint(Sketcher.Constraint("Horizontal", 15, 2, 18, 2))
sketch7.addConstraint(Sketcher.Constraint("Horizontal", 17, 2, 20, 2))
sketch7.addConstraint(Sketcher.Constraint("Horizontal", 19, 2, 22, 2))
sketch7.addConstraint(Sketcher.Constraint("Horizontal", 21, 2, 24, 2))
sketch7.addConstraint(Sketcher.Constraint("Horizontal", 23, 2, 26, 2))
sketch7.addConstraint(Sketcher.Constraint("Horizontal", 25, 2, 28, 2))
sketch7.addConstraint(Sketcher.Constraint("Horizontal", 27, 2, 30, 2))
sketch7.addConstraint(Sketcher.Constraint("Horizontal", 29, 2, 32, 2))
sketch7.addConstraint(Sketcher.Constraint("Horizontal", 31, 2, 34, 2))
sketch7.addConstraint(Sketcher.Constraint("Equal", 5, 9))
sketch7.addConstraint(Sketcher.Constraint("Equal", 7, 11))
sketch7.addConstraint(Sketcher.Constraint("Equal", 9, 13))
sketch7.addConstraint(Sketcher.Constraint("Equal", 11, 15))
sketch7.addConstraint(Sketcher.Constraint("Equal", 13, 17))
sketch7.addConstraint(Sketcher.Constraint("Equal", 15, 19))
sketch7.addConstraint(Sketcher.Constraint("Equal", 17, 21))
sketch7.addConstraint(Sketcher.Constraint("Equal", 19, 23))
sketch7.addConstraint(Sketcher.Constraint("Equal", 21, 25))
sketch7.addConstraint(Sketcher.Constraint("Equal", 23, 27))
sketch7.addConstraint(Sketcher.Constraint("Equal", 25, 29))
sketch7.addConstraint(Sketcher.Constraint("Equal", 27, 31))
sketch7.addConstraint(Sketcher.Constraint("Equal", 29, 33))
sketch7.addConstraint(Sketcher.Constraint("DistanceX", 1, 2, 1, 1, 51.0))
sketch7.addConstraint(Sketcher.Constraint("DistanceY", 0, 1, 0, 2, 23.23))
sketch7.addConstraint(Sketcher.Constraint("DistanceX", 3, 2, 7, 2, 5.9))
sketch7.addConstraint(Sketcher.Constraint("DistanceX", 3, 1, 3, 2, 1.800832))
sketch7.addConstraint(Sketcher.Constraint("Distance", 4, 18.752542))
sketch7.addConstraint(Sketcher.Constraint("DistanceX", 5, 1, 5, 2, 1.497136))
sketch7.addConstraint(Sketcher.Constraint("DistanceX", 7, 1, 7, 2, 1.543025))
sketch7.addConstraint(Sketcher.Constraint("DistanceX", 5, 2, -1, 1, 21.367718))
sketch7.setExpression("Constraints[99]", "Params.sketch7_width")
sketch7.setExpression("Constraints[100]", "Params.sketch7_height")
pad6 = body.newObject("PartDesign::Pad", "Pad005")
pad6.Profile = sketch7
pad6.Type = "TwoLengths"
pad6.setExpression("Length", "Params.pad6_length")
pad6.setExpression("Length2", "Params.pad6_length2")

# Sketch on YZ plane
sketch8 = body.newObject("Sketcher::SketchObject", "Sketch007")
sketch8.AttachmentSupport = (doc.getObject("YZ_Plane"), [""])
sketch8.MapMode = "FlatFace"
sketch8.AttachmentOffset = App.Placement(Vector(0, 0, 14.576447), App.Rotation())
add_polygon(sketch8, [(14.7, 15.9), (14.7, 6.7), (18, 15.9)])  # lines 0-2
add_polygon(sketch8, [(25, 15.9), (23.3, 15.9), (24.4, 9.7), (25, 9.7)])  # lines 3-6
sketch8.addConstraint(Sketcher.Constraint("Vertical", 0))
sketch8.addConstraint(Sketcher.Constraint("Horizontal", 2))
sketch8.addConstraint(Sketcher.Constraint("Horizontal", 3))
sketch8.addConstraint(Sketcher.Constraint("Horizontal", 5))
sketch8.addConstraint(Sketcher.Constraint("Vertical", 6))
sketch8.addConstraint(Sketcher.Constraint("Horizontal", 2, 2, 3, 2))
sketch8.addConstraint(Sketcher.Constraint("DistanceX", -1, 1, 5, 2, 25.0))
sketch8.addConstraint(Sketcher.Constraint("DistanceX", -1, 1, 0, 2, 14.7))
sketch8.addConstraint(Sketcher.Constraint("DistanceY", -1, 1, 1, 2, 15.92))
sketch8.addConstraint(Sketcher.Constraint("DistanceX", 2, 2, 2, 1, 3.309929))
sketch8.addConstraint(Sketcher.Constraint("DistanceY", 6, 1, 6, 2, 6.226129))
sketch8.addConstraint(Sketcher.Constraint("Distance", 4, 6.325081))
sketch8.addConstraint(Sketcher.Constraint("DistanceX", 3, 2, 3, 1, 1.715073))
sketch8.addConstraint(Sketcher.Constraint("DistanceY", 0, 2, 0, 1, 9.235106))
pocket1 = body.newObject("PartDesign::Pocket", "Pocket")
pocket1.Profile = sketch8
pocket1.setExpression("Length", "Params.pocket1_length")

doc.recompute()
